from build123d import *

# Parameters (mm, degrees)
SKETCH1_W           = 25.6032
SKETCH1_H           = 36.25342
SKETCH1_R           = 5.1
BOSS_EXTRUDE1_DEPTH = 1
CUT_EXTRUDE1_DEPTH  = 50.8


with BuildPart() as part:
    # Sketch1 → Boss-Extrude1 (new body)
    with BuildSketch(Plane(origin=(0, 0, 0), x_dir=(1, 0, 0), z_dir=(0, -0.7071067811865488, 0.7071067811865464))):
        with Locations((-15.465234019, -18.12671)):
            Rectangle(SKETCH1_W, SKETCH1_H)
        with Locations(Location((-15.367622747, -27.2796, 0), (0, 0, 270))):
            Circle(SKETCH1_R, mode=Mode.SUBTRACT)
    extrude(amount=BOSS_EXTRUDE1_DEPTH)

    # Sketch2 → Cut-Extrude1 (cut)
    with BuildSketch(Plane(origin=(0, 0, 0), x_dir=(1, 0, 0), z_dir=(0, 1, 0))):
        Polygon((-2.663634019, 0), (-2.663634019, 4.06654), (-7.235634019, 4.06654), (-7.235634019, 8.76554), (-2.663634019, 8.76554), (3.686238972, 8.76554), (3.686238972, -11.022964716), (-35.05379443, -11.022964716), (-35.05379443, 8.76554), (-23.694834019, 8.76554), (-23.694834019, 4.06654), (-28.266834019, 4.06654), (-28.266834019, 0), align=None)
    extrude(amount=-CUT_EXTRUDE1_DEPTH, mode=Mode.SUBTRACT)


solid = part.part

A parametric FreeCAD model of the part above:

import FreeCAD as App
import Part
import Sketcher
from FreeCAD import Vector
Q = App.Units.Quantity


def add_polygon(sketch, points):
    """Adds a closed chain of lines whose ends are joined by coincident constraints."""
    first, n = sketch.GeometryCount, len(points)
    for a, b in zip(points, points[1:] + points[:1]):
        sketch.addGeometry(Part.LineSegment(App.Vector(*a, 0), App.Vector(*b, 0)), False)
    for i in range(n):
        sketch.addConstraint(Sketcher.Constraint("Coincident", first + i, 2, first + (i + 1) % n, 1))

doc = App.newDocument("Part")
body = doc.addObject("PartDesign::Body", "Body")

# Sketch on an angled plane
sketch1 = body.newObject("Sketcher::SketchObject", "Sketch")
sketch1.Placement = App.Placement(Vector(0, 0, 0), App.Rotation(Vector(1, 0, 0), Vector(0, 0.707106781, 0.707106781), Vector(0, -0.707106781, 0.707106781), "ZXY"))
add_polygon(sketch1, [(-28.266834, 0), (-28.266834, -36.25342), (-2.663634, -36.25342), (-2.663634, 0)])  # lines 0-3
sketch1.addGeometry(Part.Circle(Vector(-15.367623, -27.2796, 0), Vector(0, 0, 1), 5.1), False)  # 4
sketch1.addConstraint(Sketcher.Constraint("Vertical", 0))
sketch1.addConstraint(Sketcher.Constraint("Horizontal", 1))
sketch1.addConstraint(Sketcher.Constraint("Vertical", 2))
sketch1.addConstraint(Sketcher.Constraint("Horizontal", 3))
sketch1.addConstraint(Sketcher.Constraint("PointOnObject", 2, 2, -1))
sketch1.addConstraint(Sketcher.Constraint("Diameter", 4, Q("10.2 mm")))
sketch1.addConstraint(Sketcher.Constraint("DistanceX", 1, 1, 1, 2, Q("1.008 in")))
sketch1.addConstraint(Sketcher.Constraint("DistanceY", 0, 2, 0, 1, Q("1.4273 in")))
sketch1.addConstraint(Sketcher.Constraint("DistanceY", 4, 3, -1, 1, Q("1.074 in")))
sketch1.addConstraint(Sketcher.Constraint("DistanceX", 0, 2, 4, 3, Q("12.899211 mm")))
sketch1.addConstraint(Sketcher.Constraint("DistanceX", 4, 3, -1, 1, Q("15.367623 mm")))
pad1 = body.newObject("PartDesign::Pad", "Pad")
pad1.Profile = sketch1
pad1.Length = 1

# Sketch on XZ plane
sketch2 = body.newObject("Sketcher::SketchObject", "Sketch001")
sketch2.AttachmentSupport = (doc.getObject("XZ_Plane"), [""])
sketch2.MapMode = "FlatFace"
add_polygon(sketch2, [(-2.663634, -4.06654), (-2.663634, 0), (-28.266834, 0), (-28.266834, -4.06654), (-23.694834, -4.06654), (-23.694834, -8.76554), (-35.053794, -8.76554), (-35.053794, 11.022965), (3.686239, 11.022965), (3.686239, -8.76554), (-7.235634, -8.76554), (-7.235634, -4.06654)])  # lines 0-11
sketch2.addConstraint(Sketcher.Constraint("Vertical", 0))
sketch2.addConstraint(Sketcher.Constraint("Horizontal", 1))
sketch2.addConstraint(Sketcher.Constraint("Vertical", 2))
sketch2.addConstraint(Sketcher.Constraint("Horizontal", 3))
sketch2.addConstraint(Sketcher.Constraint("Vertical", 4))
sketch2.addConstraint(Sketcher.Constraint("Horizontal", 5))
sketch2.addConstraint(Sketcher.Constraint("Vertical", 6))
sketch2.addConstraint(Sketcher.Constraint("Horizontal", 7))
sketch2.addConstraint(Sketcher.Constraint("Vertical", 8))
sketch2.addConstraint(Sketcher.Constraint("Horizontal", 9))
sketch2.addConstraint(Sketcher.Constraint("Vertical", 10))
sketch2.addConstraint(Sketcher.Constraint("Horizontal", 11))
sketch2.addConstraint(Sketcher.Constraint("PointOnObject", 0, 2, -1))
sketch2.addConstraint(Sketcher.Constraint("Horizontal", 5, 2, 8, 2))
sketch2.addConstraint(Sketcher.Constraint("Horizontal", 3, 2, 10, 2))
sketch2.addConstraint(Sketcher.Constraint("Equal", 3, 11))
sketch2.addConstraint(Sketcher.Constraint("DistanceX", 3, 1, 3, 2, Q("0.18 in")))
sketch2.addConstraint(Sketcher.Constraint("DistanceX", 1, 2, 1, 1, Q("1.008 in")))
sketch2.addConstraint(Sketcher.Constraint("DistanceY", 4, 2, 4, 1, Q("0.185 in")))
sketch2.addConstraint(Sketcher.Constraint("DistanceY", 0, 1, 0, 2, Q("0.1601 in")))
sketch2.addConstraint(Sketcher.Constraint("DistanceX", 5, 2, 5, 1, Q("11.35896 mm")))
sketch2.addConstraint(Sketcher.Constraint("DistanceX", 7, 1, 7, 2, Q("38.740033 mm")))
sketch2.addConstraint(Sketcher.Constraint("DistanceY", 6, 1, 6, 2, Q("19.788505 mm")))
sketch2.addConstraint(Sketcher.Constraint("DistanceX", -1, 1, 7, 2, Q("3.686239 mm")))
pocket1 = body.newObject("PartDesign::Pocket", "Pocket")
pocket1.Profile = sketch2
pocket1.Length = Q("2 in")
pocket1.Reversed = True

doc.recompute()
